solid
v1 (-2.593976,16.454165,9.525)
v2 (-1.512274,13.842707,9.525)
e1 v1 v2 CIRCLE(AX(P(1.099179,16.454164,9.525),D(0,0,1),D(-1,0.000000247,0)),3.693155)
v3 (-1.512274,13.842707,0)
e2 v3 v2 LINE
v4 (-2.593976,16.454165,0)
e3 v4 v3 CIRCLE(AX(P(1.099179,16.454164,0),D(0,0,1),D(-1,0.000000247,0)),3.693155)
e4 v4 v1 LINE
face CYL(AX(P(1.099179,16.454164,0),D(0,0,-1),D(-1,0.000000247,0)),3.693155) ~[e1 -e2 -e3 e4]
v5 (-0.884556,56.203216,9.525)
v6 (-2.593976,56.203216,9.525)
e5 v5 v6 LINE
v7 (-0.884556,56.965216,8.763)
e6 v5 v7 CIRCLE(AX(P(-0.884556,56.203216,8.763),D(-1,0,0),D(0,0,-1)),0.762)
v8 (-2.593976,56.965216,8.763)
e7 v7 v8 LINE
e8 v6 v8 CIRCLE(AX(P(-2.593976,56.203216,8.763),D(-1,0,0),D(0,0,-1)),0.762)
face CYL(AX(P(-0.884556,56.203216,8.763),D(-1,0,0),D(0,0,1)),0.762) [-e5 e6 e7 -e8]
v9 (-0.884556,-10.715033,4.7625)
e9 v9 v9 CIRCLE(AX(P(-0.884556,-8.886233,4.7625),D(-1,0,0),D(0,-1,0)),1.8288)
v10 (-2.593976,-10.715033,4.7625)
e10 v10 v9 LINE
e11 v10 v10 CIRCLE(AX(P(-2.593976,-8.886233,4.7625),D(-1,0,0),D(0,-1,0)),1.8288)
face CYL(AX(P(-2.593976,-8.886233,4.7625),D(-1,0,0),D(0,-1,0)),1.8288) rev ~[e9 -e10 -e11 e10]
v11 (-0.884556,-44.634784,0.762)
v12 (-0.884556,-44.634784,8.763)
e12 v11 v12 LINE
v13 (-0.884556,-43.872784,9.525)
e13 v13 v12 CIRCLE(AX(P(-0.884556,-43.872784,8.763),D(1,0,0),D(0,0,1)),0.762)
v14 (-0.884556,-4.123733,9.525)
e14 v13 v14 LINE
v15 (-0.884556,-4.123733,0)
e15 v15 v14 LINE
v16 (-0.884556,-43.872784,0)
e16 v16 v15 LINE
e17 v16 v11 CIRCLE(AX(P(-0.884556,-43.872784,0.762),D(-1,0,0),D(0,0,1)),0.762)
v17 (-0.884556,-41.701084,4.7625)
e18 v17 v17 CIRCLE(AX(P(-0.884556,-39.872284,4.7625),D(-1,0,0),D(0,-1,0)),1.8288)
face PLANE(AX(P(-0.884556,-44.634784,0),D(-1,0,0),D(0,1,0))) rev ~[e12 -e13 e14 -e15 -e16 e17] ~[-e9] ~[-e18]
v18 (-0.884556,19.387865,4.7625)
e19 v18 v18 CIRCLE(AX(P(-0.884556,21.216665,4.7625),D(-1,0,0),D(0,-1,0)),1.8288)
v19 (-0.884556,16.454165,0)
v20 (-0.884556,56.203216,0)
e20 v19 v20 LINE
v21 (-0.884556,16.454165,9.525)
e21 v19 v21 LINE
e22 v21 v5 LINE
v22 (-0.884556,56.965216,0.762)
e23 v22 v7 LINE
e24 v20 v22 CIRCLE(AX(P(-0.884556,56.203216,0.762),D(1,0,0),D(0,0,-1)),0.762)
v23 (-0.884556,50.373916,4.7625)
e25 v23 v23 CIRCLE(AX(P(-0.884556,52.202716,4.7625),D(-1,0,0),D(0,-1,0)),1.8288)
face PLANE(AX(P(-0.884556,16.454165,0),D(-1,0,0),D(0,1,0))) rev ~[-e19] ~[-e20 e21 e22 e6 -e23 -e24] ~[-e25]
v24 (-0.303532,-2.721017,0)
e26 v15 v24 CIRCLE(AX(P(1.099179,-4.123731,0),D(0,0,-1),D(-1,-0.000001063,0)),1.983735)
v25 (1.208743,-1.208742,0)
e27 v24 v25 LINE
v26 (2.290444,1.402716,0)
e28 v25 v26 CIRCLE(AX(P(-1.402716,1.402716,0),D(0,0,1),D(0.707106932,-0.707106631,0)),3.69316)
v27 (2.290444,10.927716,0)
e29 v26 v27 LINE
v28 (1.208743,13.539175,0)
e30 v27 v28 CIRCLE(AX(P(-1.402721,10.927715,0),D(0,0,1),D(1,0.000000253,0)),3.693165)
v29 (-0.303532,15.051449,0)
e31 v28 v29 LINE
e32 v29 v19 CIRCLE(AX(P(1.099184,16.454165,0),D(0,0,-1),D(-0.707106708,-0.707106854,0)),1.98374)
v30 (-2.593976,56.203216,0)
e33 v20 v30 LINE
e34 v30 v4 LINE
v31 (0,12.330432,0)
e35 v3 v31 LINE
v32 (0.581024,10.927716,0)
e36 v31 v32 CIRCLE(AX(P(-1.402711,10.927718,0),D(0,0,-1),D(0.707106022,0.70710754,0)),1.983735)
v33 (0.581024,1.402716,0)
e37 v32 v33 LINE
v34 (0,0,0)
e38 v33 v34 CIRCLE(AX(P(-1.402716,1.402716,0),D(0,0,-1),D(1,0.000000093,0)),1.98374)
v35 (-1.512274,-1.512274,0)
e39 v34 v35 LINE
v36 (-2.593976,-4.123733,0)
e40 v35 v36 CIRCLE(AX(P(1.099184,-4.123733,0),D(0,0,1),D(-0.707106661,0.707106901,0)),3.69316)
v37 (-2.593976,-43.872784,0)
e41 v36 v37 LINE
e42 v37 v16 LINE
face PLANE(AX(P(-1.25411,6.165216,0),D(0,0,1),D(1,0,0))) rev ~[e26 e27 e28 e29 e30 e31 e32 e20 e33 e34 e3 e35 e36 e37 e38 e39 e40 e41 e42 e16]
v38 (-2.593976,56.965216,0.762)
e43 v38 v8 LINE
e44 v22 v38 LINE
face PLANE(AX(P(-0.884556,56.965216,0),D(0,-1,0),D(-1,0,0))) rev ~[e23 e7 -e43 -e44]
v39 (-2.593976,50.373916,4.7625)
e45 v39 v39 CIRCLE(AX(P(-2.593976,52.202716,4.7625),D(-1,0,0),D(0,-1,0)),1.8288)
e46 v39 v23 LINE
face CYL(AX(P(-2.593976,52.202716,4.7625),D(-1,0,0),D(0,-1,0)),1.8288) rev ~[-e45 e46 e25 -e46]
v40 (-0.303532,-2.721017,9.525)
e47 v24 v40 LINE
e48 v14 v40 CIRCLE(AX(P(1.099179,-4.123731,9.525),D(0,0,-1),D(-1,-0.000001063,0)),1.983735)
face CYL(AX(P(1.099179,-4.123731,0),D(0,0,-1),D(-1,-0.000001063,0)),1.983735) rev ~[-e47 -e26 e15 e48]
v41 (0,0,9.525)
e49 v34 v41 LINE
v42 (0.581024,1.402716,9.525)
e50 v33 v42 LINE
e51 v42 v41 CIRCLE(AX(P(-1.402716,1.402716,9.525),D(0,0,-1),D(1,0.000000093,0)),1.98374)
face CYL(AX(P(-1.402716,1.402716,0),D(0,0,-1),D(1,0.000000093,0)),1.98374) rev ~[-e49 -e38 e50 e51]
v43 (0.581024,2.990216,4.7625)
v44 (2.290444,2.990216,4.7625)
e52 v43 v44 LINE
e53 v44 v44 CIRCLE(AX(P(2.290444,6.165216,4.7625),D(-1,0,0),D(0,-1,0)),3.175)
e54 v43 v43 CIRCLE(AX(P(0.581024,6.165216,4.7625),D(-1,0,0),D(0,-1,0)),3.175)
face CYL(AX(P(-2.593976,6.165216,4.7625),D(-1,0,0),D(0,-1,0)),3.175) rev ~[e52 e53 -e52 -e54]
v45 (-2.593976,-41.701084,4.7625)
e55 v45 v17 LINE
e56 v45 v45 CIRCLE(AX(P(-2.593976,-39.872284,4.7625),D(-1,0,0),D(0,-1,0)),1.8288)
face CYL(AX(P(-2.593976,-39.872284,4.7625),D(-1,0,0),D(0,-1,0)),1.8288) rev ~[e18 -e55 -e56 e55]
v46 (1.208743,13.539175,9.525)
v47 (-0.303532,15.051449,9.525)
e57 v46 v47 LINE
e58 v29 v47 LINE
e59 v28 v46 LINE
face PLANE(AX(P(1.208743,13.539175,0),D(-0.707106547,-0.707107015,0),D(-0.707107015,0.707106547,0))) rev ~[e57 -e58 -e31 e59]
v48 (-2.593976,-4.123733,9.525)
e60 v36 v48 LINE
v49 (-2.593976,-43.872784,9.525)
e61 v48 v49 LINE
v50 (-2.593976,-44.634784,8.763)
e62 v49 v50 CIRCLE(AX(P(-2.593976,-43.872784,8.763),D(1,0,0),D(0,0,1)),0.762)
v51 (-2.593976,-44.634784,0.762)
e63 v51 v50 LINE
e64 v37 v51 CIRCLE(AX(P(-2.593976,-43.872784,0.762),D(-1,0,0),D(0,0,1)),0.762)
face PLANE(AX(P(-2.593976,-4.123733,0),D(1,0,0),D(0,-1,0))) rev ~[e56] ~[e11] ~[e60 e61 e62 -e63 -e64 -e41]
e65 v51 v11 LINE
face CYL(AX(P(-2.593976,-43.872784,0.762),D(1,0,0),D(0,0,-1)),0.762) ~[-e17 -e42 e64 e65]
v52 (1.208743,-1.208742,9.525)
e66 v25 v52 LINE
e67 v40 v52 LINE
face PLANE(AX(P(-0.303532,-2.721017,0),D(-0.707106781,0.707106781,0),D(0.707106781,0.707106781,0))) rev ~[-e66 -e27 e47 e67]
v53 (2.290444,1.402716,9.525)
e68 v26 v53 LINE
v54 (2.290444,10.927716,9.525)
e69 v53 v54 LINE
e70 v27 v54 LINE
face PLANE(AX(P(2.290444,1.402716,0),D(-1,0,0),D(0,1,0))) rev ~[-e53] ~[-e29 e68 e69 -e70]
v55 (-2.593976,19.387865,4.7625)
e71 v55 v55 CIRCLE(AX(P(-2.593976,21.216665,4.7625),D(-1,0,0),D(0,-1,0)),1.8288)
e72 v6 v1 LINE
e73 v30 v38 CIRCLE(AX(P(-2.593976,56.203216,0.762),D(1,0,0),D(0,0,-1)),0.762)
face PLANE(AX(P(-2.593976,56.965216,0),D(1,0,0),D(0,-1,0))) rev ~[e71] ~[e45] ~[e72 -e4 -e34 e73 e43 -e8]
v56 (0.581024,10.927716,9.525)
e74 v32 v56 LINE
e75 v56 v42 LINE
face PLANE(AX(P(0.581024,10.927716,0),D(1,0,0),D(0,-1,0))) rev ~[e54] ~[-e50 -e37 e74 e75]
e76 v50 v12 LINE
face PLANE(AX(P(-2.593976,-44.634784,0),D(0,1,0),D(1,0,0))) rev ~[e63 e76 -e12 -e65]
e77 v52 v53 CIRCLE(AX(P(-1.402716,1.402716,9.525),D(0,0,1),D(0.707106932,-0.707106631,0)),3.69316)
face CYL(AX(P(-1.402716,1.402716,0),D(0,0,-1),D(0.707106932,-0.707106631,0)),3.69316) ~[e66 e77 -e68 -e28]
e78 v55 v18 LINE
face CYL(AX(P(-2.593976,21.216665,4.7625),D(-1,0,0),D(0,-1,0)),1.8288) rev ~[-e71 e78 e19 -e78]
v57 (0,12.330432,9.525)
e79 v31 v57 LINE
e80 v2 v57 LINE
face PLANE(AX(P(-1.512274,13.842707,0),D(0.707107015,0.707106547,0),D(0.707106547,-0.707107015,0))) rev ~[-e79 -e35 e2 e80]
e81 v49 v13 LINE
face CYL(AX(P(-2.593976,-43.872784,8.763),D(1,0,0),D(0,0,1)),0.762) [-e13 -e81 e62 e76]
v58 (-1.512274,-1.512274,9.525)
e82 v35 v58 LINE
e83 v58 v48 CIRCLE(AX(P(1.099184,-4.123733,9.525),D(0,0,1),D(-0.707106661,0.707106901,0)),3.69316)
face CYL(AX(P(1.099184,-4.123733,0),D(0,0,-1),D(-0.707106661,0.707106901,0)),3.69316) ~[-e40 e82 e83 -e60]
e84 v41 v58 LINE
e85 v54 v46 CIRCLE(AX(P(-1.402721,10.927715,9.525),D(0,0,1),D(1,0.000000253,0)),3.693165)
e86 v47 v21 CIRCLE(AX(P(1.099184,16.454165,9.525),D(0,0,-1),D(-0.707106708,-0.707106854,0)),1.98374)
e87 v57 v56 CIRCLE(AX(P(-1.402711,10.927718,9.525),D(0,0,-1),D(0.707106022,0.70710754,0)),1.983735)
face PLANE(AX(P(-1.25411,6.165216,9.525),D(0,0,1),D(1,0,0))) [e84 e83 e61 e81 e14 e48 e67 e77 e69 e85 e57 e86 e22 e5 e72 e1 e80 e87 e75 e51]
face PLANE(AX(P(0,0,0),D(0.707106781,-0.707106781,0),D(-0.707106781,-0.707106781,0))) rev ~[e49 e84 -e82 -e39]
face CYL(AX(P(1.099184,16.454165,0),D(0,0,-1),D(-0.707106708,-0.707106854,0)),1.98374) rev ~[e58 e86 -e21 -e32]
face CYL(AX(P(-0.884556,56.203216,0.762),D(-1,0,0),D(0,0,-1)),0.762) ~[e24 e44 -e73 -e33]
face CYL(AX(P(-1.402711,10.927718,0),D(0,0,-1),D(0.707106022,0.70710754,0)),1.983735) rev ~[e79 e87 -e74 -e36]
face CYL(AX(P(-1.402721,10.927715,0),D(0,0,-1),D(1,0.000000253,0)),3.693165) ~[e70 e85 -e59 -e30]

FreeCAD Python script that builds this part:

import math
import FreeCAD as App
import Part
import Sketcher
Q = App.Units.Quantity


def edges_at(feature, points):
    """Names of the edges that pass closest to the given points."""
    edges = feature.Shape.Edges
    near = lambda p: min(range(len(edges)), key=lambda i: edges[i].distToShape(Part.Vertex(*p))[0])
    return sorted({f"Edge{near(p) + 1}" for p in points})

doc = App.newDocument("Part")
body = doc.addObject("PartDesign::Body", "Body")

sketch1 = body.newObject("Sketcher::SketchObject", "Sketch")
sketch1.AttachmentSupport = (doc.getObject("XY_Plane"), [""])
sketch1.MapMode = "FlatFace"
sketch1.addGeometry([
    Part.ArcOfCircle(Part.Circle(App.Vector(-1.4, 1.4, 0), App.Vector(0, 0, 1), 2), math.radians(-45), math.radians(0)),
    Part.LineSegment(App.Vector(0, 0, 0), App.Vector(-1.5, -1.5, 0)),
    Part.ArcOfCircle(Part.Circle(App.Vector(1.1, -4.1, 0), App.Vector(0, 0, 1), 3.7), math.radians(135), math.radians(180)),
    Part.LineSegment(App.Vector(-2.6, -4.1, 0), App.Vector(-2.6, -44.6, 0)),
    Part.LineSegment(App.Vector(-2.6, -44.6, 0), App.Vector(-0.9, -44.6, 0)),
    Part.LineSegment(App.Vector(-0.9, -44.6, 0), App.Vector(-0.9, -4.1, 0)),
    Part.ArcOfCircle(Part.Circle(App.Vector(1.1, -4.1, 0), App.Vector(0, 0, 1), 2), math.radians(135), math.radians(180)),
    Part.LineSegment(App.Vector(-0.3, -2.7, 0), App.Vector(1.2, -1.2, 0)),
    Part.ArcOfCircle(Part.Circle(App.Vector(-1.4, 1.4, 0), App.Vector(0, 0, 1), 3.7), math.radians(-45), math.radians(0)),
    Part.LineSegment(App.Vector(2.3, 1.4, 0), App.Vector(2.3, 10.9, 0)),
    Part.ArcOfCircle(Part.Circle(App.Vector(-1.4, 10.9, 0), App.Vector(0, 0, 1), 3.7), math.radians(0), math.radians(45)),
    Part.LineSegment(App.Vector(1.2, 13.5, 0), App.Vector(-0.3, 15.1, 0)),
    Part.ArcOfCircle(Part.Circle(App.Vector(1.1, 16.5, 0), App.Vector(0, 0, 1), 2), math.radians(180), math.radians(225)),
    Part.LineSegment(App.Vector(-0.9, 16.5, 0), App.Vector(-0.9, 57, 0)),
    Part.LineSegment(App.Vector(-0.9, 57, 0), App.Vector(-2.6, 57, 0)),
    Part.LineSegment(App.Vector(-2.6, 57, 0), App.Vector(-2.6, 16.5, 0)),
    Part.ArcOfCircle(Part.Circle(App.Vector(1.1, 16.5, 0), App.Vector(0, 0, 1), 3.7), math.radians(180), math.radians(225)),
    Part.LineSegment(App.Vector(-1.5, 13.8, 0), App.Vector(0, 12.3, 0)),
    Part.ArcOfCircle(Part.Circle(App.Vector(-1.4, 10.9, 0), App.Vector(0, 0, 1), 2), math.radians(0), math.radians(45)),
    Part.LineSegment(App.Vector(0.6, 10.9, 0), App.Vector(0.6, 1.4, 0)),
], False)
sketch1.addConstraint([
    Sketcher.Constraint("Tangent", 0, 1, 1, 1),
    Sketcher.Constraint("Tangent", 1, 2, 2, 1),
    Sketcher.Constraint("Tangent", 2, 2, 3, 1),
    Sketcher.Constraint("Coincident", 3, 2, 4, 1),
    Sketcher.Constraint("Coincident", 4, 2, 5, 1),
    Sketcher.Constraint("Tangent", 5, 2, 6, 2),
    Sketcher.Constraint("Tangent", 6, 1, 7, 1),
    Sketcher.Constraint("Tangent", 7, 2, 8, 1),
    Sketcher.Constraint("Tangent", 8, 2, 9, 1),
    Sketcher.Constraint("Tangent", 9, 2, 10, 1),
    Sketcher.Constraint("Tangent", 10, 2, 11, 1),
    Sketcher.Constraint("Tangent", 11, 2, 12, 2),
    Sketcher.Constraint("Tangent", 12, 1, 13, 1),
    Sketcher.Constraint("Coincident", 13, 2, 14, 1),
    Sketcher.Constraint("Coincident", 14, 2, 15, 1),
    Sketcher.Constraint("Tangent", 15, 2, 16, 1),
    Sketcher.Constraint("Tangent", 16, 2, 17, 1),
    Sketcher.Constraint("Tangent", 17, 2, 18, 2),
    Sketcher.Constraint("Tangent", 18, 1, 19, 1),
    Sketcher.Constraint("Tangent", 19, 2, 0, 2),
    Sketcher.Constraint("Vertical", 3),
    Sketcher.Constraint("Horizontal", 4),
    Sketcher.Constraint("Vertical", 5),
    Sketcher.Constraint("Vertical", 9),
    Sketcher.Constraint("Vertical", 13),
    Sketcher.Constraint("Horizontal", 14),
    Sketcher.Constraint("Vertical", 15),
    Sketcher.Constraint("Vertical", 19),
    Sketcher.Constraint("Coincident", 0, 1, -1, 1),
    Sketcher.Constraint("Coincident", 6, 3, 2, 3),
    Sketcher.Constraint("Coincident", 8, 3, 0, 3),
    Sketcher.Constraint("Coincident", 16, 3, 12, 3),
    Sketcher.Constraint("Equal", 2, 8),
    Sketcher.Constraint("Equal", 0, 12),
    Sketcher.Constraint("Equal", 6, 18),
    Sketcher.Constraint("PointOnObject", 17, 2, -2),
    Sketcher.Constraint("Parallel", 1, 7),
    Sketcher.Constraint("Perpendicular", 7, 11),
    Sketcher.Constraint("Parallel", 11, 17),
    Sketcher.Constraint("Horizontal", 9, 2, 18, 1),
    Sketcher.Constraint("Vertical", 2, 3, 12, 3),
    Sketcher.Constraint("Vertical", 7, 2, 10, 2),
    Sketcher.Constraint("Equal", 5, 13),
    Sketcher.Constraint("Radius", 0, Q("0.0781 in")),
    Sketcher.Constraint("Radius", 2, Q("0.1454 in")),
    Sketcher.Constraint("DistanceY", 9, 1, 9, 2, Q("0.375 in")),
    Sketcher.Constraint("Distance", 1, Q("0.0841999 in")),
    Sketcher.Constraint("DistanceY", 3, 2, 3, 1, 40.511051),
])
pad1 = body.newObject("PartDesign::Pad", "Pad")
pad1.Profile = sketch1
pad1.Length = Q("0.375 in")

sketch2 = body.newObject("Sketcher::SketchObject", "Sketch001")
sketch2.AttachmentSupport = (doc.getObject("YZ_Plane"), [""])
sketch2.MapMode = "FlatFace"
sketch2.AttachmentOffset = App.Placement(App.Vector(0, 0, -2.593976), App.Rotation())
sketch2.addGeometry([
    Part.Circle(App.Vector(52.2, 4.8, 0), App.Vector(0, 0, 1), 1.8),
    Part.Circle(App.Vector(21.2, 4.8, 0), App.Vector(0, 0, 1), 1.8),
    Part.Circle(App.Vector(-8.9, 4.8, 0), App.Vector(0, 0, 1), 1.8),
    Part.Circle(App.Vector(-39.9, 4.8, 0), App.Vector(0, 0, 1), 1.8),
    Part.Circle(App.Vector(6.2, 4.8, 0), App.Vector(0, 0, 1), 3.2),
], False)
sketch2.addConstraint([
    Sketcher.Constraint("Equal", 0, 1),
    Sketcher.Constraint("Equal", 1, 2),
    Sketcher.Constraint("Equal", 2, 3),
    Sketcher.Constraint("Horizontal", 0, 3, 1, 3),
    Sketcher.Constraint("Horizontal", 1, 3, 2, 3),
    Sketcher.Constraint("Horizontal", 2, 3, 3, 3),
    Sketcher.Constraint("Horizontal", 3, 3, 4, 3),
    Sketcher.Constraint("Diameter", 4, Q("0.25 in")),
    Sketcher.Constraint("Diameter", 0, Q("0.144 in")),
    Sketcher.Constraint("DistanceY", -1, 1, 0, 3, Q("0.1875 in")),
    Sketcher.Constraint("DistanceX", 3, 3, 0, 3, Q("3.625 in")),
    Sketcher.Constraint("DistanceX", 4, 3, 0, 3, Q("1.8125 in")),
    Sketcher.Constraint("DistanceX", 1, 3, 0, 3, 30.986051),
    Sketcher.Constraint("DistanceX", 2, 3, 0, 3, 61.088949),
    Sketcher.Constraint("DistanceX", -1, 1, 0, 3, 52.202716),
])
pocket1 = body.newObject("PartDesign::Pocket", "Pocket")
pocket1.Profile = sketch2
pocket1.Type = "ThroughAll"
pocket1.Reversed = True
doc.recompute()

fillet = body.newObject("PartDesign::Fillet", "Fillet")
fillet.Base = (pocket1, edges_at(pocket1, [
    (-1.739, 56.965, 9.525),
    (-1.739, 56.965, 0),
    (-1.739, -44.635, 9.525),
    (-1.739, -44.635, 0),
]))
fillet.Radius = Q("0.03 in")

doc.recompute()
